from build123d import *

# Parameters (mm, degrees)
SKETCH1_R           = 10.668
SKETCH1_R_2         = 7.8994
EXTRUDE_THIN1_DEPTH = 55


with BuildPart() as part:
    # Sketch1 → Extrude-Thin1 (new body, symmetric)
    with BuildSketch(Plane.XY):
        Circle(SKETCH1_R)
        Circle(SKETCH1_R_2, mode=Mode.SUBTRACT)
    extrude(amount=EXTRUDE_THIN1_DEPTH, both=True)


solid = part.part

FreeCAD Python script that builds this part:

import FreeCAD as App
import Part
import Sketcher
from FreeCAD import Vector
Q = App.Units.Quantity

doc = App.newDocument("Part")
body = doc.addObject("PartDesign::Body", "Body")

# Sketch on XY plane
sketch1 = body.newObject("Sketcher::SketchObject", "Sketch")
sketch1.AttachmentSupport = (doc.getObject("XY_Plane"), [""])
sketch1.MapMode = "FlatFace"
sketch1.addGeometry(Part.Circle(Vector(0, 0, 0), Vector(0, 0, 1), 10.668), False)
sketch1.addGeometry(Part.Circle(Vector(0, 0, 0), Vector(0, 0, 1), 7.8994), False)
sketch1.addConstraint(Sketcher.Constraint("Coincident", 0, 3, -1, 1))
sketch1.addConstraint(Sketcher.Constraint("Coincident", 1, 3, -1, 1))
sketch1.addConstraint(Sketcher.Constraint("Diameter", 0, Q("0.84 in")))
sketch1.addConstraint(Sketcher.Constraint("Diameter", 1, Q("0.622 in")))
pad1 = body.newObject("PartDesign::Pad", "Pad")
pad1.Profile = sketch1
pad1.Length = 110
pad1.Midplane = True

doc.recompute()
